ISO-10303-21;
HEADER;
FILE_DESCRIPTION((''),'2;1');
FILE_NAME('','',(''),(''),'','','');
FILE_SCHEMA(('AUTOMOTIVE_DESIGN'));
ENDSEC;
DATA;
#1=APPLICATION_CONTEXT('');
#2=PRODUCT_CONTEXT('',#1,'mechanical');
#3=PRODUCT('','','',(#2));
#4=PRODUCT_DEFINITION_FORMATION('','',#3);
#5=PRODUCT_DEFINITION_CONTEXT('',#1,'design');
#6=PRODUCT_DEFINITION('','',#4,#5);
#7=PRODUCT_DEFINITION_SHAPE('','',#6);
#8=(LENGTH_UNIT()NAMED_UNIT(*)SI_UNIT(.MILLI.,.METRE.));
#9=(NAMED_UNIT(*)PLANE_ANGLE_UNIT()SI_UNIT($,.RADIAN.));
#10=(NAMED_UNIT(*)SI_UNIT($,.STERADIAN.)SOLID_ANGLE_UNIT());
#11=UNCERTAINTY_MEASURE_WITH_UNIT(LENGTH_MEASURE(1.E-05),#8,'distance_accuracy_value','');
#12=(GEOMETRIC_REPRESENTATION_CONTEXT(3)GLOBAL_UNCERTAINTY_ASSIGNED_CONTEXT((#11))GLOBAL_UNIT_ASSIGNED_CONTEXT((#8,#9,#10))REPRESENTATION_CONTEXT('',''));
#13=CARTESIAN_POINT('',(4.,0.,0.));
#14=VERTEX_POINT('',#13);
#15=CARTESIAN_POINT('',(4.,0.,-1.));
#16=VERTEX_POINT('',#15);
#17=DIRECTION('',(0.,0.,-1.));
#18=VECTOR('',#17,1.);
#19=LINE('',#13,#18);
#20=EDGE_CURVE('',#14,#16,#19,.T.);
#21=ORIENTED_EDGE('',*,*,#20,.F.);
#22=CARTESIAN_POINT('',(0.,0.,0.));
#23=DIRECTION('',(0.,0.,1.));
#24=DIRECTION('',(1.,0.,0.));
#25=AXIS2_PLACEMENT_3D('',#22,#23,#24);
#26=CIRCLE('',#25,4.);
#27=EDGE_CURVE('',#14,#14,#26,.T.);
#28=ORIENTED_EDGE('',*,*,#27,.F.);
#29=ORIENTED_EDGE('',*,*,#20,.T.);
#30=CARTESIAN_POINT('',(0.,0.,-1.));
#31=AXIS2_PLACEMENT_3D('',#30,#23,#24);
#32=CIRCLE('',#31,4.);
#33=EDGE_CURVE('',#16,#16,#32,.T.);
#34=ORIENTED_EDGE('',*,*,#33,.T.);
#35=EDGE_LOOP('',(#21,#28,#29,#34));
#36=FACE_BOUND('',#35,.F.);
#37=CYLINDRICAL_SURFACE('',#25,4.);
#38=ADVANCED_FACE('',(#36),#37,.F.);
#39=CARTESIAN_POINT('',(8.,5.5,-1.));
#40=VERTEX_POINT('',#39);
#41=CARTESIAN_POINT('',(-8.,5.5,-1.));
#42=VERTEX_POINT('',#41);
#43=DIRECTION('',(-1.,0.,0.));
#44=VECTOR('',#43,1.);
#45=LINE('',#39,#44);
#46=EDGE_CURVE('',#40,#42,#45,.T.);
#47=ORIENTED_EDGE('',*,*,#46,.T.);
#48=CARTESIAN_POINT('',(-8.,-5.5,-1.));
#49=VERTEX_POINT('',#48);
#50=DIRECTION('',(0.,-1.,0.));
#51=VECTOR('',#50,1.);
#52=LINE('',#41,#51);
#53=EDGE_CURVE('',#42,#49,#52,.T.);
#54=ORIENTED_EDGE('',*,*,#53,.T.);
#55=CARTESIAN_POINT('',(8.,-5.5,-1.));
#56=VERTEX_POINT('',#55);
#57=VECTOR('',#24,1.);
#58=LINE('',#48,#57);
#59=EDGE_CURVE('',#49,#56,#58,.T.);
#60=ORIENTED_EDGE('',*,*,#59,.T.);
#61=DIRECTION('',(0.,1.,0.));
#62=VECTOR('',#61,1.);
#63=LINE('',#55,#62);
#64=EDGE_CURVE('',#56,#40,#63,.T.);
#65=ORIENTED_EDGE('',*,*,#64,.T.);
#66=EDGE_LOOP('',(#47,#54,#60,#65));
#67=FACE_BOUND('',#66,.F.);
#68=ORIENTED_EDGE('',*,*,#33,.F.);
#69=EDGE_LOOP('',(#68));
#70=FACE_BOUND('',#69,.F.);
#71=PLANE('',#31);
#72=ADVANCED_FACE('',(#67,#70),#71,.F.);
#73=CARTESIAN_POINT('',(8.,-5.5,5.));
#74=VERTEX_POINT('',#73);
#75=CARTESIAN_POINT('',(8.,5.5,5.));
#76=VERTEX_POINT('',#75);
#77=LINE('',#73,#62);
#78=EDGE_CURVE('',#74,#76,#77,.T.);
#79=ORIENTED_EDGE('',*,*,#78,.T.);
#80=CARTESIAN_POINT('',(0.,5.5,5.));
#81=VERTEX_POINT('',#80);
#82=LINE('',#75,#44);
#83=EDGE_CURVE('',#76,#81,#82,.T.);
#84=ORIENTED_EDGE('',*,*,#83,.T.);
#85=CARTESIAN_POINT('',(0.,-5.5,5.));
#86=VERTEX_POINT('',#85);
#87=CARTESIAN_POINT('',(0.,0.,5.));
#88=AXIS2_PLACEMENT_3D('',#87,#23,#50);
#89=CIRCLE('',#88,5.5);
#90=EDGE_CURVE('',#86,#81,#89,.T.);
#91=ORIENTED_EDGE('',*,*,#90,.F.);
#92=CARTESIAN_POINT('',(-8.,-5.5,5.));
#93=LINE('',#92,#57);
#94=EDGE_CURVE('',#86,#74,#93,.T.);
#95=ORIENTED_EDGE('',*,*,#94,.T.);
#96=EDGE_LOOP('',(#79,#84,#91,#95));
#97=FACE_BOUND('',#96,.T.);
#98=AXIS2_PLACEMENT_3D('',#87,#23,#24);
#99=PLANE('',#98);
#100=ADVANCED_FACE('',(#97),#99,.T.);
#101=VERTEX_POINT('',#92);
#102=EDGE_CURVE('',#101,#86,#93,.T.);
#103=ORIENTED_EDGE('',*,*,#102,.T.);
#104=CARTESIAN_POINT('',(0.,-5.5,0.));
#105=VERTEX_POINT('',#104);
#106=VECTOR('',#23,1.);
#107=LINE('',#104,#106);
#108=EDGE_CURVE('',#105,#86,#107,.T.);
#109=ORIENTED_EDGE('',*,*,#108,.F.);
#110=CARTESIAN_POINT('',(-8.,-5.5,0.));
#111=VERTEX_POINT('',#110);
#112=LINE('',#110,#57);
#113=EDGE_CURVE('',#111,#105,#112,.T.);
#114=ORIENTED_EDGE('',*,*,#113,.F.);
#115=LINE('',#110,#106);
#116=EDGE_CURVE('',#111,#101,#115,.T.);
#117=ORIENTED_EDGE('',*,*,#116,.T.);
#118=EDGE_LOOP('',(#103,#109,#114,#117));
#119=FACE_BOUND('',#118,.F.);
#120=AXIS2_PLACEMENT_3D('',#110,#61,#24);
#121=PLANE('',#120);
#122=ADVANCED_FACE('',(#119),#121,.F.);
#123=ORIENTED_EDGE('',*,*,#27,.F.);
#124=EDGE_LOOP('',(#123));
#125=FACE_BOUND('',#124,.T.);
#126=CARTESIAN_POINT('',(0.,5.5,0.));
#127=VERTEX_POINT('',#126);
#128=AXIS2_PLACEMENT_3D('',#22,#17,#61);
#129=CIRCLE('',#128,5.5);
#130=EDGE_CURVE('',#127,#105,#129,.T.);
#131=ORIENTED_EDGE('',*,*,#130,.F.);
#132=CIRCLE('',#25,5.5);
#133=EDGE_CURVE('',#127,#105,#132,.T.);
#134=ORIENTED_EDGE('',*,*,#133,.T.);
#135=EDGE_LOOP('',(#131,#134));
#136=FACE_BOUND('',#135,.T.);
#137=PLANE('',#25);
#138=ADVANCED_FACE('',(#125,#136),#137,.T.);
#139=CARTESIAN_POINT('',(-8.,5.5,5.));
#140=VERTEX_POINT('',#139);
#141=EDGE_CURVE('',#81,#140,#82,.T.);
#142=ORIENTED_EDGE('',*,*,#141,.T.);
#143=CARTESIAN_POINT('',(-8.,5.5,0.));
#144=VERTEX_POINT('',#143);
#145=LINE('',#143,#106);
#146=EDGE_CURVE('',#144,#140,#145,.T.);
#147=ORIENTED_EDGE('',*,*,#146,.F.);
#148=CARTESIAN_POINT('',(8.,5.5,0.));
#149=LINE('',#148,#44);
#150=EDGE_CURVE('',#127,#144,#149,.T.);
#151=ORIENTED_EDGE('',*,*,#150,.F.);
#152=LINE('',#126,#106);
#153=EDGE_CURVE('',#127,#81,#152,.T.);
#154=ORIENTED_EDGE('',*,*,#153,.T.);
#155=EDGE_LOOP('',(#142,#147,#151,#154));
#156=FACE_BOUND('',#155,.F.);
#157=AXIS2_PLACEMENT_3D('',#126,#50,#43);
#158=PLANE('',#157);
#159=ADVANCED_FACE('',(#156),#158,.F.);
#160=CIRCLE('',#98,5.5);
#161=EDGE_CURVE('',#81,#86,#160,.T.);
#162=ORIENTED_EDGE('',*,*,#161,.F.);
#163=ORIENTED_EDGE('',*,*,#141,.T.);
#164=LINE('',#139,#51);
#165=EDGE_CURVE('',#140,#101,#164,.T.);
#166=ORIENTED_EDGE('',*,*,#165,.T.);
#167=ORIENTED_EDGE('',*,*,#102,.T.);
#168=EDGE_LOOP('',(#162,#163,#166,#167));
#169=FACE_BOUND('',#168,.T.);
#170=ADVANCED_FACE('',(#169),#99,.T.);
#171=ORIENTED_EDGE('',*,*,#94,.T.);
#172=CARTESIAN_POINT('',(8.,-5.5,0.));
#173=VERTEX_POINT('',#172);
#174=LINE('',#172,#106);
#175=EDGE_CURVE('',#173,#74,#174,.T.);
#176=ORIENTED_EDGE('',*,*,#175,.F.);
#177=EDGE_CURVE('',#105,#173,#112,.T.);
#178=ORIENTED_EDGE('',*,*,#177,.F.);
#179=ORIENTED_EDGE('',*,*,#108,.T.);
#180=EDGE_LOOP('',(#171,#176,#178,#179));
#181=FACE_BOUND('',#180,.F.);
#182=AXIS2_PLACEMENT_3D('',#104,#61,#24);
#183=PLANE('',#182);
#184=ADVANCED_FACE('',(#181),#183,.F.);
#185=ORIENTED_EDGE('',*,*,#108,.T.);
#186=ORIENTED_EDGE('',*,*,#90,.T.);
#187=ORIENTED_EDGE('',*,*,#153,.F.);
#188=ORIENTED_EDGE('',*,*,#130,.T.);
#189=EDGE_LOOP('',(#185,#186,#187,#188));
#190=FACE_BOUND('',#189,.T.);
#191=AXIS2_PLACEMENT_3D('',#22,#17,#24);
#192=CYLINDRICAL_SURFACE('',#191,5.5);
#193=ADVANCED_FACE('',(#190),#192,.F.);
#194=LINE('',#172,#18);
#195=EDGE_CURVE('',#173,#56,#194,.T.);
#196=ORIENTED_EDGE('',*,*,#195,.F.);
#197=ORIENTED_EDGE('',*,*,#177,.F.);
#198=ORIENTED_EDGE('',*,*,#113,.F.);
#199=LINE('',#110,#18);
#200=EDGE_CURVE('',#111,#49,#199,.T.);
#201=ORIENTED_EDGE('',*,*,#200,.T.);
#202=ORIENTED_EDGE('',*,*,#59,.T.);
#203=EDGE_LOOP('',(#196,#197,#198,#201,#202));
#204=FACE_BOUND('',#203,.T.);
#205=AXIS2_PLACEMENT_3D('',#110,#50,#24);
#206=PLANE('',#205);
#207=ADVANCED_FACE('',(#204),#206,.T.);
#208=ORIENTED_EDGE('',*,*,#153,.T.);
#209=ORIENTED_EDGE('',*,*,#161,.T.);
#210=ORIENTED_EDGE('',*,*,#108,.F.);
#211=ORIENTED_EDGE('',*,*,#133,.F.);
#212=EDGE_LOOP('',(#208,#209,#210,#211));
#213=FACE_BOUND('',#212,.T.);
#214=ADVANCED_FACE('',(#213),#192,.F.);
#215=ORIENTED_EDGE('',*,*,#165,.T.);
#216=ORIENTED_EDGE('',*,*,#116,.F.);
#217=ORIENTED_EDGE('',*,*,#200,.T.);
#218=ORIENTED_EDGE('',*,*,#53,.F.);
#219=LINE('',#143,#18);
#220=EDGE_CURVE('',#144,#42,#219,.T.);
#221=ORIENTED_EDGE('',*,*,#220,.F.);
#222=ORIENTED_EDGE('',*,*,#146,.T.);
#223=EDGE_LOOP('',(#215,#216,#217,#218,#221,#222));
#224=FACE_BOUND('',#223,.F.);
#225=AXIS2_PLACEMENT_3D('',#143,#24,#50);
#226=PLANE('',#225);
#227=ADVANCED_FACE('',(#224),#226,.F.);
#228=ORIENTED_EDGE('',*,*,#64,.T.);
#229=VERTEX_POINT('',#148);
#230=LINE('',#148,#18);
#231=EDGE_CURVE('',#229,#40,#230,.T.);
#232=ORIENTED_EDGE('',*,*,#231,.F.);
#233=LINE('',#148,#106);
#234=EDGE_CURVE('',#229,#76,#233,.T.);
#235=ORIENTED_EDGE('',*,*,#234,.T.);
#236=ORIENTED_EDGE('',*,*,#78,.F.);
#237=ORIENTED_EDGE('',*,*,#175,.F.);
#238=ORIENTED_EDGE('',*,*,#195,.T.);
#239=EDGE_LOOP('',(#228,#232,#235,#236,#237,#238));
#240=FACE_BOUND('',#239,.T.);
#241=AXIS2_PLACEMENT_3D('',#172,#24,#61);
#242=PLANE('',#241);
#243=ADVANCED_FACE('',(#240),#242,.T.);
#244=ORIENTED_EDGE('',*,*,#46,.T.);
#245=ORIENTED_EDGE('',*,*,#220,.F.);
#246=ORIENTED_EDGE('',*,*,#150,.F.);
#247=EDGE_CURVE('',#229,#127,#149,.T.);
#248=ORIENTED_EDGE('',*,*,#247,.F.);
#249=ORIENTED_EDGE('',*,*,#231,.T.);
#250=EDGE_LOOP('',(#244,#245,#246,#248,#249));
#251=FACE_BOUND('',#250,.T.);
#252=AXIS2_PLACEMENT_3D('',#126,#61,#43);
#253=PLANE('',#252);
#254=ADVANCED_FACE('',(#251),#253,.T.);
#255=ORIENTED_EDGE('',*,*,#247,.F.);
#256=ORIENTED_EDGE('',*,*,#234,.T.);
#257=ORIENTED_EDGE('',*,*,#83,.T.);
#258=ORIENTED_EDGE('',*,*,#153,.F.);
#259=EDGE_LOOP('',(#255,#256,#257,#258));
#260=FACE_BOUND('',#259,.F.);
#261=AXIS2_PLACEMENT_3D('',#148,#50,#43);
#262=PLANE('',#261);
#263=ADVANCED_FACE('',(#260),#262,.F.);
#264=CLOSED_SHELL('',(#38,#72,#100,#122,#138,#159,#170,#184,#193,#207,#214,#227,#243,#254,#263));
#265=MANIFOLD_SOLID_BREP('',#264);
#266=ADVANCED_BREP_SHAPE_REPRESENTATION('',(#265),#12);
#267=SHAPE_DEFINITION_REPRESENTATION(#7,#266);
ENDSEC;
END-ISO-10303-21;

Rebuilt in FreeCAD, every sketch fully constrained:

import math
import FreeCAD as App
import Part
import Sketcher
Q = App.Units.Quantity

doc = App.newDocument("Part")
body = doc.addObject("PartDesign::Body", "Body")
body.AllowCompound = True

# Sketch on XY plane
sketch1 = body.newObject("Sketcher::SketchObject", "Sketch")
sketch1.AttachmentSupport = (doc.getObject("XY_Plane"), [""])
sketch1.MapMode = "FlatFace"
sketch1.addGeometry(Part.LineSegment(App.Vector(-8, 6, 0), App.Vector(-8, -6, 0)), False)
sketch1.addGeometry(Part.LineSegment(App.Vector(-8, -6, 0), App.Vector(0, -6, 0)), False)
sketch1.addGeometry(Part.ArcOfCircle(Part.Circle(App.Vector(0, 0, 0), App.Vector(0, 0, 1), 6), math.radians(90), math.radians(270)), False)
sketch1.addGeometry(Part.LineSegment(App.Vector(0, 6, 0), App.Vector(-8, 6, 0)), False)
sketch1.addGeometry(Part.ArcOfCircle(Part.Circle(App.Vector(0, 0, 0), App.Vector(0, 0, 1), 6), math.radians(-90), math.radians(90)), False)
sketch1.addGeometry(Part.LineSegment(App.Vector(0, -6, 0), App.Vector(8, -6, 0)), False)
sketch1.addGeometry(Part.LineSegment(App.Vector(8, -6, 0), App.Vector(8, 6, 0)), False)
sketch1.addGeometry(Part.LineSegment(App.Vector(8, 6, 0), App.Vector(0, 6, 0)), False)
sketch1.addConstraint(Sketcher.Constraint("Coincident", 0, 2, 1, 1))
sketch1.addConstraint(Sketcher.Constraint("Tangent", 1, 2, 2, 2))
sketch1.addConstraint(Sketcher.Constraint("Tangent", 2, 1, 3, 1))
sketch1.addConstraint(Sketcher.Constraint("Coincident", 3, 2, 0, 1))
sketch1.addConstraint(Sketcher.Constraint("Tangent", 4, 1, 5, 1))
sketch1.addConstraint(Sketcher.Constraint("Coincident", 5, 2, 6, 1))
sketch1.addConstraint(Sketcher.Constraint("Coincident", 6, 2, 7, 1))
sketch1.addConstraint(Sketcher.Constraint("Tangent", 7, 2, 4, 2))
sketch1.addConstraint(Sketcher.Constraint("Vertical", 0))
sketch1.addConstraint(Sketcher.Constraint("Horizontal", 1))
sketch1.addConstraint(Sketcher.Constraint("Horizontal", 3))
sketch1.addConstraint(Sketcher.Constraint("Horizontal", 5))
sketch1.addConstraint(Sketcher.Constraint("Vertical", 6))
sketch1.addConstraint(Sketcher.Constraint("Horizontal", 7))
sketch1.addConstraint(Sketcher.Constraint("Coincident", 2, 3, -1, 1))
sketch1.addConstraint(Sketcher.Constraint("Coincident", 4, 3, -1, 1))
sketch1.addConstraint(Sketcher.Constraint("Equal", 2, 4))
sketch1.addConstraint(Sketcher.Constraint("Equal", 3, 5))
sketch1.addConstraint(Sketcher.Constraint("Radius", 2, Q("5.5 mm")))
sketch1.addConstraint(Sketcher.Constraint("DistanceX", 1, 1, 1, 2, Q("8 mm")))
pad1 = body.newObject("PartDesign::Pad", "Pad")
pad1.Profile = sketch1
pad1.Length = 5

# Sketch on XY plane
sketch2 = body.newObject("Sketcher::SketchObject", "Sketch001")
sketch2.AttachmentSupport = (doc.getObject("XY_Plane"), [""])
sketch2.MapMode = "FlatFace"
sketch2.addGeometry(Part.LineSegment(App.Vector(-8, 6, 0), App.Vector(-8, -6, 0)), False)
sketch2.addGeometry(Part.LineSegment(App.Vector(-8, -6, 0), App.Vector(8, -6, 0)), False)
sketch2.addGeometry(Part.LineSegment(App.Vector(8, -6, 0), App.Vector(8, 6, 0)), False)
sketch2.addGeometry(Part.LineSegment(App.Vector(8, 6, 0), App.Vector(-8, 6, 0)), False)
sketch2.addConstraint(Sketcher.Constraint("Coincident", 0, 2, 1, 1))
sketch2.addConstraint(Sketcher.Constraint("Coincident", 1, 2, 2, 1))
sketch2.addConstraint(Sketcher.Constraint("Coincident", 2, 2, 3, 1))
sketch2.addConstraint(Sketcher.Constraint("Coincident", 3, 2, 0, 1))
sketch2.addConstraint(Sketcher.Constraint("Vertical", 0))
sketch2.addConstraint(Sketcher.Constraint("Horizontal", 1))
sketch2.addConstraint(Sketcher.Constraint("Vertical", 2))
sketch2.addConstraint(Sketcher.Constraint("Horizontal", 3))
sketch2.addConstraint(Sketcher.Constraint("Symmetric", 0, 2, 2, 2, -1, 1))
sketch2.addConstraint(Sketcher.Constraint("DistanceX", 1, 1, 1, 2, Q("16 mm")))
sketch2.addConstraint(Sketcher.Constraint("DistanceY", 0, 2, 0, 1, Q("11 mm")))
pad2 = body.newObject("PartDesign::Pad", "Pad001")
pad2.Profile = sketch2
pad2.Length = 1
pad2.Reversed = True

# Sketch on XY plane
sketch3 = body.newObject("Sketcher::SketchObject", "Sketch002")
sketch3.AttachmentSupport = (doc.getObject("XY_Plane"), [""])
sketch3.MapMode = "FlatFace"
sketch3.addGeometry(Part.Circle(App.Vector(0, 0, 0), App.Vector(0, 0, 1), 4), False)
sketch3.addConstraint(Sketcher.Constraint("Coincident", 0, 3, -1, 1))
sketch3.addConstraint(Sketcher.Constraint("Diameter", 0, Q("8 mm")))
pocket1 = body.newObject("PartDesign::Pocket", "Pocket")
pocket1.Profile = sketch3
pocket1.Type = "ThroughAll"

doc.recompute()
